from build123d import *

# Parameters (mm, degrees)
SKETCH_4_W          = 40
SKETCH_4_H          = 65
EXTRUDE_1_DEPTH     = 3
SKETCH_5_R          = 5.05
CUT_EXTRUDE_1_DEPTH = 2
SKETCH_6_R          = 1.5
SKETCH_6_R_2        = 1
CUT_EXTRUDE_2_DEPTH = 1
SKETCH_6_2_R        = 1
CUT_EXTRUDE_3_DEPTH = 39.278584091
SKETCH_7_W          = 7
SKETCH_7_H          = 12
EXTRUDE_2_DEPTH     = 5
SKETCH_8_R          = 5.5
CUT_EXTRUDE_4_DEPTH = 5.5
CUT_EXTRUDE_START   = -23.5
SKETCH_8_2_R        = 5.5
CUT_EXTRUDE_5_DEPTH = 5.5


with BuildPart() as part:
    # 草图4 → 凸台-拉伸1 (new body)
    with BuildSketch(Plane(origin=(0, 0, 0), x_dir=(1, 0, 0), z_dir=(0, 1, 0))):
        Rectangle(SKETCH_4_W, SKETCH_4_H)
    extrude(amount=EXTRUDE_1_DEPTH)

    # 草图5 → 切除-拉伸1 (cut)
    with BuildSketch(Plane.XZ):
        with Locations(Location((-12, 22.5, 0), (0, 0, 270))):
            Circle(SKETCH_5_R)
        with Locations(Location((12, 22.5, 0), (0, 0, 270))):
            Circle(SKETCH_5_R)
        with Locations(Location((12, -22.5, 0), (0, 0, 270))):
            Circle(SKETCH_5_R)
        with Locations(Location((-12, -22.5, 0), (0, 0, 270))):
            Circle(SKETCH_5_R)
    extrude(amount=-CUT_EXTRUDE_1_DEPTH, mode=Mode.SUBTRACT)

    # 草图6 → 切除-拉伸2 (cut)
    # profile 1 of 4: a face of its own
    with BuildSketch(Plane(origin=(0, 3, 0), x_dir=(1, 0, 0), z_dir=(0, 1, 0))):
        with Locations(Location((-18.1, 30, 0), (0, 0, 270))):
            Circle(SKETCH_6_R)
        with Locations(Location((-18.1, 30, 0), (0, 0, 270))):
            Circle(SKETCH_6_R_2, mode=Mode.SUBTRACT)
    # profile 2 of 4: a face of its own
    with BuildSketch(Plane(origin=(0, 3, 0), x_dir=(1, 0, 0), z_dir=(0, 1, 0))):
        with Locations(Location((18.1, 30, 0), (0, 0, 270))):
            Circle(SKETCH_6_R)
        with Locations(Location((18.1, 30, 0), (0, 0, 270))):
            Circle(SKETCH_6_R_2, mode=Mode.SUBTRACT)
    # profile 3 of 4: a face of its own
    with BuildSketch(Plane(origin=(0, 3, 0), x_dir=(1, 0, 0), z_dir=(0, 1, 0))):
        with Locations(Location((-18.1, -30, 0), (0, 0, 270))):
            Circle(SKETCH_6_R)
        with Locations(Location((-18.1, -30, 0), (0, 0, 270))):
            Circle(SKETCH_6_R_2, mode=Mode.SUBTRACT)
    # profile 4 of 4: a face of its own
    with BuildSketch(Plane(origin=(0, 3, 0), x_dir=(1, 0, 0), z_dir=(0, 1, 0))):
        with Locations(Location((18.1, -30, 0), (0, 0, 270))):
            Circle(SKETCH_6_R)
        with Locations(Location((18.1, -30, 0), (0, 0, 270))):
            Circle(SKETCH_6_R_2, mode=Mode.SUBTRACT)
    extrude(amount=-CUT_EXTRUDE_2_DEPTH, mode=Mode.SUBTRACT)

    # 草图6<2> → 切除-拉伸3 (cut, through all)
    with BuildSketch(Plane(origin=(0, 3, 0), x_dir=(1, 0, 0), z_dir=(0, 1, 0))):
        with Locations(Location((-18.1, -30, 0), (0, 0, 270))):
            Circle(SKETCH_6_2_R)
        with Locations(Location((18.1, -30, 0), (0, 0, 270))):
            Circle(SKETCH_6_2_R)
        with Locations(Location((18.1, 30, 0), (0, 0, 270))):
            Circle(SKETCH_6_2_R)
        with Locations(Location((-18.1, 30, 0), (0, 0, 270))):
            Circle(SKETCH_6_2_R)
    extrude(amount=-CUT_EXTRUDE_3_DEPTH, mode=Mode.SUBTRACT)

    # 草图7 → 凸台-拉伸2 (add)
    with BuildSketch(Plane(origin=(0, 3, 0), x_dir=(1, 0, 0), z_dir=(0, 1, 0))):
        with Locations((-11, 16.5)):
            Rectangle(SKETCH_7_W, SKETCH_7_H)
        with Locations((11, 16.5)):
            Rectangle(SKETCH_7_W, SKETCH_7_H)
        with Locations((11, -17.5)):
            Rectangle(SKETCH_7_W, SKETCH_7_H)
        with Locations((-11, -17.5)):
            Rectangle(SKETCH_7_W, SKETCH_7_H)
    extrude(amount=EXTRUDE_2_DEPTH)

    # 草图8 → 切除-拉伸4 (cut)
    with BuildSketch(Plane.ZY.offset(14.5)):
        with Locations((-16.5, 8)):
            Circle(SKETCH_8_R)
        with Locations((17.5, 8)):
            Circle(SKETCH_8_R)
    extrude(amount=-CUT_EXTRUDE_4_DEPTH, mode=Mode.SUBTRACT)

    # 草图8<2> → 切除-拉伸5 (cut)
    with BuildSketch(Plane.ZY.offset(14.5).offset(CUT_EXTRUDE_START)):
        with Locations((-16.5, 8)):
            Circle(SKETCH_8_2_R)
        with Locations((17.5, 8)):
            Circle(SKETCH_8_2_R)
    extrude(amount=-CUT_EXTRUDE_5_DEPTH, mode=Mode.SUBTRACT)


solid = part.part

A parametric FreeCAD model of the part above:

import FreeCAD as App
import Part
import Sketcher
from FreeCAD import Vector

doc = App.newDocument("Part")
body = doc.addObject("PartDesign::Body", "Body")

# Sketch on XZ plane
sketch1 = doc.addObject("Sketcher::SketchObject", "Sketch")
body.addObject(sketch1)
sketch1.AttachmentSupport = (doc.XZ_Plane, [""])
sketch1.MapMode = "FlatFace"
sketch1.addGeometry([
    Part.LineSegment(Vector(-20, -32, 0), Vector(-20, 32, 0)),
    Part.LineSegment(Vector(-20, 32, 0), Vector(20, 32, 0)),
    Part.LineSegment(Vector(20, 32, 0), Vector(20, -32, 0)),
    Part.LineSegment(Vector(20, -32, 0), Vector(-20, -32, 0)),
], False)
sketch1.addConstraint([
    Sketcher.Constraint("Coincident", 0, 2, 1, 1),
    Sketcher.Constraint("Coincident", 1, 2, 2, 1),
    Sketcher.Constraint("Coincident", 2, 2, 3, 1),
    Sketcher.Constraint("Coincident", 3, 2, 0, 1),
    Sketcher.Constraint("Vertical", 0),
    Sketcher.Constraint("Horizontal", 1),
    Sketcher.Constraint("Vertical", 2),
    Sketcher.Constraint("Horizontal", 3),
    Sketcher.Constraint("Symmetric", 0, 2, 2, 2, -1, 1),
    Sketcher.Constraint("DistanceX", 1, 1, 1, 2, 40.0),
    Sketcher.Constraint("DistanceY", 0, 1, 0, 2, 65.0),
])
pad1 = doc.addObject("PartDesign::Pad", "Pad")
body.addObject(pad1)
pad1.Profile = sketch1
pad1.Length = 3
pad1.Reversed = True

# Sketch on XZ plane
sketch2 = doc.addObject("Sketcher::SketchObject", "Sketch001")
body.addObject(sketch2)
sketch2.AttachmentSupport = (doc.XZ_Plane, [""])
sketch2.MapMode = "FlatFace"
sketch2.addGeometry([
    Part.Circle(Vector(-12, 22, 0), Vector(0, 0, 1), 5),
    Part.Circle(Vector(12, 22, 0), Vector(0, 0, 1), 5),
    Part.Circle(Vector(12, -22, 0), Vector(0, 0, 1), 5),
    Part.Circle(Vector(-12, -22, 0), Vector(0, 0, 1), 5),
], False)
sketch2.addConstraint([
    Sketcher.Constraint("Equal", 0, 1),
    Sketcher.Constraint("Equal", 1, 2),
    Sketcher.Constraint("Equal", 2, 3),
    Sketcher.Constraint("Symmetric", 0, 3, 2, 3, -1, 1),
    Sketcher.Constraint("Symmetric", 1, 3, 3, 3, -1, 1),
    Sketcher.Constraint("Symmetric", 0, 3, 1, 3, -2),
    Sketcher.Constraint("Diameter", 0, 10.1),
    Sketcher.Constraint("DistanceX", 0, 3, -1, 1, 12.0),
    Sketcher.Constraint("DistanceY", 2, 3, 1, 3, 45.0),
])
pocket1 = doc.addObject("PartDesign::Pocket", "Pocket")
body.addObject(pocket1)
pocket1.Profile = sketch2
pocket1.Length = 2

# Sketch on XZ plane
sketch3 = doc.addObject("Sketcher::SketchObject", "Sketch002")
body.addObject(sketch3)
sketch3.AttachmentSupport = (doc.XZ_Plane, [""])
sketch3.MapMode = "FlatFace"
sketch3.AttachmentOffset = App.Placement(Vector(0, 0, -3), App.Rotation())
sketch3.addGeometry([
    Part.Circle(Vector(-18.1, -30, 0), Vector(0, 0, 1), 1.5),  # 0
    Part.Circle(Vector(-18.1, -30, 0), Vector(0, 0, 1), 1),  # 1
    Part.Circle(Vector(18.1, -30, 0), Vector(0, 0, 1), 1.5),  # 2
    Part.Circle(Vector(18.1, -30, 0), Vector(0, 0, 1), 1),  # 3
    Part.Circle(Vector(-18.1, 30, 0), Vector(0, 0, 1), 1.5),  # 4
    Part.Circle(Vector(-18.1, 30, 0), Vector(0, 0, 1), 1),  # 5
    Part.Circle(Vector(18.1, 30, 0), Vector(0, 0, 1), 1.5),  # 6
    Part.Circle(Vector(18.1, 30, 0), Vector(0, 0, 1), 1),  # 7
], False)
sketch3.addConstraint([
    Sketcher.Constraint("Coincident", 1, 3, 0, 3),
    Sketcher.Constraint("Coincident", 3, 3, 2, 3),
    Sketcher.Constraint("Coincident", 5, 3, 4, 3),
    Sketcher.Constraint("Coincident", 7, 3, 6, 3),
    Sketcher.Constraint("Equal", 0, 2),
    Sketcher.Constraint("Equal", 1, 3),
    Sketcher.Constraint("Equal", 2, 4),
    Sketcher.Constraint("Equal", 3, 5),
    Sketcher.Constraint("Equal", 4, 6),
    Sketcher.Constraint("Equal", 5, 7),
    Sketcher.Constraint("Symmetric", 2, 3, 4, 3, -1, 1),
    Sketcher.Constraint("Symmetric", 0, 3, 6, 3, -1, 1),
    Sketcher.Constraint("Symmetric", 0, 3, 2, 3, -2),
    Sketcher.Constraint("Diameter", 0, 3.0),
    Sketcher.Constraint("Diameter", 1, 2.0),
    Sketcher.Constraint("DistanceY", 0, 3, -1, 1, 30.0),
    Sketcher.Constraint("DistanceX", 0, 3, -1, 1, 18.1),
])
pocket2 = doc.addObject("PartDesign::Pocket", "Pocket001")
body.addObject(pocket2)
pocket2.Profile = sketch3
pocket2.Length = 1
pocket2.Reversed = True

# Sketch on XZ plane
sketch4 = doc.addObject("Sketcher::SketchObject", "Sketch003")
body.addObject(sketch4)
sketch4.AttachmentSupport = (doc.XZ_Plane, [""])
sketch4.MapMode = "FlatFace"
sketch4.AttachmentOffset = App.Placement(Vector(0, 0, -3), App.Rotation())
sketch4.addGeometry([
    Part.Circle(Vector(-18.1, 30, 0), Vector(0, 0, 1), 1),
    Part.Circle(Vector(18.1, 30, 0), Vector(0, 0, 1), 1),
    Part.Circle(Vector(18.1, -30, 0), Vector(0, 0, 1), 1),
    Part.Circle(Vector(-18.1, -30, 0), Vector(0, 0, 1), 1),
], False)
sketch4.addConstraint([
    Sketcher.Constraint("Equal", 0, 1),
    Sketcher.Constraint("Equal", 1, 2),
    Sketcher.Constraint("Equal", 2, 3),
    Sketcher.Constraint("Symmetric", 0, 3, 2, 3, -1, 1),
    Sketcher.Constraint("Symmetric", 1, 3, 3, 3, -1, 1),
    Sketcher.Constraint("Symmetric", 0, 3, 1, 3, -2),
    Sketcher.Constraint("Diameter", 0, 2.0),
    Sketcher.Constraint("DistanceY", -1, 1, 0, 3, 30.0),
    Sketcher.Constraint("DistanceX", 0, 3, -1, 1, 18.1),
])
pocket3 = doc.addObject("PartDesign::Pocket", "Pocket002")
body.addObject(pocket3)
pocket3.Profile = sketch4
pocket3.Type = "ThroughAll"
pocket3.Reversed = True

# Sketch on XZ plane
sketch5 = doc.addObject("Sketcher::SketchObject", "Sketch004")
body.addObject(sketch5)
sketch5.AttachmentSupport = (doc.XZ_Plane, [""])
sketch5.MapMode = "FlatFace"
sketch5.AttachmentOffset = App.Placement(Vector(0, 0, -3), App.Rotation())
sketch5.addGeometry([
    Part.LineSegment(Vector(-14, -22, 0), Vector(-14, -10, 0)),  # 0
    Part.LineSegment(Vector(-14, -10, 0), Vector(-8, -10, 0)),  # 1
    Part.LineSegment(Vector(-8, -10, 0), Vector(-8, -22, 0)),  # 2
    Part.LineSegment(Vector(-8, -22, 0), Vector(-14, -22, 0)),  # 3
    Part.LineSegment(Vector(8, -22, 0), Vector(8, -10, 0)),  # 4
    Part.LineSegment(Vector(8, -10, 0), Vector(14, -10, 0)),  # 5
    Part.LineSegment(Vector(14, -10, 0), Vector(14, -22, 0)),  # 6
    Part.LineSegment(Vector(14, -22, 0), Vector(8, -22, 0)),  # 7
    Part.LineSegment(Vector(8, 12, 0), Vector(8, 24, 0)),  # 8
    Part.LineSegment(Vector(8, 24, 0), Vector(14, 24, 0)),  # 9
    Part.LineSegment(Vector(14, 24, 0), Vector(14, 12, 0)),  # 10
    Part.LineSegment(Vector(14, 12, 0), Vector(8, 12, 0)),  # 11
    Part.LineSegment(Vector(-14, 12, 0), Vector(-14, 24, 0)),  # 12
    Part.LineSegment(Vector(-14, 24, 0), Vector(-8, 24, 0)),  # 13
    Part.LineSegment(Vector(-8, 24, 0), Vector(-8, 12, 0)),  # 14
    Part.LineSegment(Vector(-8, 12, 0), Vector(-14, 12, 0)),  # 15
], False)
sketch5.addConstraint([
    Sketcher.Constraint("Coincident", 0, 2, 1, 1),
    Sketcher.Constraint("Coincident", 1, 2, 2, 1),
    Sketcher.Constraint("Coincident", 2, 2, 3, 1),
    Sketcher.Constraint("Coincident", 3, 2, 0, 1),
    Sketcher.Constraint("Coincident", 4, 2, 5, 1),
    Sketcher.Constraint("Coincident", 5, 2, 6, 1),
    Sketcher.Constraint("Coincident", 6, 2, 7, 1),
    Sketcher.Constraint("Coincident", 7, 2, 4, 1),
    Sketcher.Constraint("Coincident", 8, 2, 9, 1),
    Sketcher.Constraint("Coincident", 9, 2, 10, 1),
    Sketcher.Constraint("Coincident", 10, 2, 11, 1),
    Sketcher.Constraint("Coincident", 11, 2, 8, 1),
    Sketcher.Constraint("Coincident", 12, 2, 13, 1),
    Sketcher.Constraint("Coincident", 13, 2, 14, 1),
    Sketcher.Constraint("Coincident", 14, 2, 15, 1),
    Sketcher.Constraint("Coincident", 15, 2, 12, 1),
    Sketcher.Constraint("Vertical", 0),
    Sketcher.Constraint("Horizontal", 1),
    Sketcher.Constraint("Vertical", 2),
    Sketcher.Constraint("Horizontal", 3),
    Sketcher.Constraint("Vertical", 4),
    Sketcher.Constraint("Horizontal", 5),
    Sketcher.Constraint("Vertical", 6),
    Sketcher.Constraint("Horizontal", 7),
    Sketcher.Constraint("Vertical", 8),
    Sketcher.Constraint("Horizontal", 9),
    Sketcher.Constraint("Vertical", 10),
    Sketcher.Constraint("Horizontal", 11),
    Sketcher.Constraint("Vertical", 12),
    Sketcher.Constraint("Horizontal", 13),
    Sketcher.Constraint("Vertical", 14),
    Sketcher.Constraint("Horizontal", 15),
    Sketcher.Constraint("Symmetric", 1, 2, 4, 2, -2),
    Sketcher.Constraint("Symmetric", 3, 2, 6, 2, -2),
    Sketcher.Constraint("Symmetric", 9, 2, 12, 2, -2),
    Sketcher.Constraint("Symmetric", 11, 2, 14, 2, -2),
    Sketcher.Constraint("Vertical", 7, 2, 8, 2),
    Sketcher.Constraint("Vertical", 6, 2, 9, 2),
    Sketcher.Constraint("Equal", 6, 8),
    Sketcher.Constraint("DistanceX", 1, 1, 1, 2, 7.0),
    Sketcher.Constraint("DistanceY", 0, 1, 0, 2, 12.0),
    Sketcher.Constraint("DistanceX", 1, 2, 4, 2, 15.0),
    Sketcher.Constraint("DistanceY", 4, 2, 8, 2, 34.0),
    Sketcher.Constraint("DistanceY", 0, 2, -1, 1, 10.5),
])
pad2 = doc.addObject("PartDesign::Pad", "Pad001")
body.addObject(pad2)
pad2.Profile = sketch5
pad2.Length = 5
pad2.Reversed = True

# Sketch on YZ plane
sketch6 = doc.addObject("Sketcher::SketchObject", "Sketch005")
body.addObject(sketch6)
sketch6.AttachmentSupport = (doc.YZ_Plane, [""])
sketch6.MapMode = "FlatFace"
sketch6.AttachmentOffset = App.Placement(Vector(0, 0, -14.5), App.Rotation())
sketch6.addGeometry([
    Part.Circle(Vector(8, -16, 0), Vector(0, 0, 1), 6),
    Part.Circle(Vector(8, 18, 0), Vector(0, 0, 1), 6),
], False)
sketch6.addConstraint([
    Sketcher.Constraint("Equal", 0, 1),
    Sketcher.Constraint("Vertical", 0, 3, 1, 3),
    Sketcher.Constraint("Diameter", 0, 11.0),
    Sketcher.Constraint("DistanceX", -1, 1, 0, 3, 8.0),
    Sketcher.Constraint("DistanceY", 0, 3, 1, 3, 34.0),
    Sketcher.Constraint("DistanceY", 0, 3, -1, 1, 16.5),
])
pocket4 = doc.addObject("PartDesign::Pocket", "Pocket003")
body.addObject(pocket4)
pocket4.Profile = sketch6
pocket4.Length = 5.5
pocket4.Reversed = True

# Sketch on YZ plane
sketch7 = doc.addObject("Sketcher::SketchObject", "Sketch006")
body.addObject(sketch7)
sketch7.AttachmentSupport = (doc.YZ_Plane, [""])
sketch7.MapMode = "FlatFace"
sketch7.AttachmentOffset = App.Placement(Vector(0, 0, 9), App.Rotation())
sketch7.addGeometry([
    Part.Circle(Vector(8, -16, 0), Vector(0, 0, 1), 6),
    Part.Circle(Vector(8, 18, 0), Vector(0, 0, 1), 6),
], False)
sketch7.addConstraint([
    Sketcher.Constraint("Equal", 0, 1),
    Sketcher.Constraint("Vertical", 0, 3, 1, 3),
    Sketcher.Constraint("Diameter", 0, 11.0),
    Sketcher.Constraint("DistanceX", -1, 1, 0, 3, 8.0),
    Sketcher.Constraint("DistanceY", 0, 3, 1, 3, 34.0),
    Sketcher.Constraint("DistanceY", 0, 3, -1, 1, 16.5),
])
pocket5 = doc.addObject("PartDesign::Pocket", "Pocket004")
body.addObject(pocket5)
pocket5.Profile = sketch7
pocket5.Length = 5.5
pocket5.Reversed = True

doc.recompute()
